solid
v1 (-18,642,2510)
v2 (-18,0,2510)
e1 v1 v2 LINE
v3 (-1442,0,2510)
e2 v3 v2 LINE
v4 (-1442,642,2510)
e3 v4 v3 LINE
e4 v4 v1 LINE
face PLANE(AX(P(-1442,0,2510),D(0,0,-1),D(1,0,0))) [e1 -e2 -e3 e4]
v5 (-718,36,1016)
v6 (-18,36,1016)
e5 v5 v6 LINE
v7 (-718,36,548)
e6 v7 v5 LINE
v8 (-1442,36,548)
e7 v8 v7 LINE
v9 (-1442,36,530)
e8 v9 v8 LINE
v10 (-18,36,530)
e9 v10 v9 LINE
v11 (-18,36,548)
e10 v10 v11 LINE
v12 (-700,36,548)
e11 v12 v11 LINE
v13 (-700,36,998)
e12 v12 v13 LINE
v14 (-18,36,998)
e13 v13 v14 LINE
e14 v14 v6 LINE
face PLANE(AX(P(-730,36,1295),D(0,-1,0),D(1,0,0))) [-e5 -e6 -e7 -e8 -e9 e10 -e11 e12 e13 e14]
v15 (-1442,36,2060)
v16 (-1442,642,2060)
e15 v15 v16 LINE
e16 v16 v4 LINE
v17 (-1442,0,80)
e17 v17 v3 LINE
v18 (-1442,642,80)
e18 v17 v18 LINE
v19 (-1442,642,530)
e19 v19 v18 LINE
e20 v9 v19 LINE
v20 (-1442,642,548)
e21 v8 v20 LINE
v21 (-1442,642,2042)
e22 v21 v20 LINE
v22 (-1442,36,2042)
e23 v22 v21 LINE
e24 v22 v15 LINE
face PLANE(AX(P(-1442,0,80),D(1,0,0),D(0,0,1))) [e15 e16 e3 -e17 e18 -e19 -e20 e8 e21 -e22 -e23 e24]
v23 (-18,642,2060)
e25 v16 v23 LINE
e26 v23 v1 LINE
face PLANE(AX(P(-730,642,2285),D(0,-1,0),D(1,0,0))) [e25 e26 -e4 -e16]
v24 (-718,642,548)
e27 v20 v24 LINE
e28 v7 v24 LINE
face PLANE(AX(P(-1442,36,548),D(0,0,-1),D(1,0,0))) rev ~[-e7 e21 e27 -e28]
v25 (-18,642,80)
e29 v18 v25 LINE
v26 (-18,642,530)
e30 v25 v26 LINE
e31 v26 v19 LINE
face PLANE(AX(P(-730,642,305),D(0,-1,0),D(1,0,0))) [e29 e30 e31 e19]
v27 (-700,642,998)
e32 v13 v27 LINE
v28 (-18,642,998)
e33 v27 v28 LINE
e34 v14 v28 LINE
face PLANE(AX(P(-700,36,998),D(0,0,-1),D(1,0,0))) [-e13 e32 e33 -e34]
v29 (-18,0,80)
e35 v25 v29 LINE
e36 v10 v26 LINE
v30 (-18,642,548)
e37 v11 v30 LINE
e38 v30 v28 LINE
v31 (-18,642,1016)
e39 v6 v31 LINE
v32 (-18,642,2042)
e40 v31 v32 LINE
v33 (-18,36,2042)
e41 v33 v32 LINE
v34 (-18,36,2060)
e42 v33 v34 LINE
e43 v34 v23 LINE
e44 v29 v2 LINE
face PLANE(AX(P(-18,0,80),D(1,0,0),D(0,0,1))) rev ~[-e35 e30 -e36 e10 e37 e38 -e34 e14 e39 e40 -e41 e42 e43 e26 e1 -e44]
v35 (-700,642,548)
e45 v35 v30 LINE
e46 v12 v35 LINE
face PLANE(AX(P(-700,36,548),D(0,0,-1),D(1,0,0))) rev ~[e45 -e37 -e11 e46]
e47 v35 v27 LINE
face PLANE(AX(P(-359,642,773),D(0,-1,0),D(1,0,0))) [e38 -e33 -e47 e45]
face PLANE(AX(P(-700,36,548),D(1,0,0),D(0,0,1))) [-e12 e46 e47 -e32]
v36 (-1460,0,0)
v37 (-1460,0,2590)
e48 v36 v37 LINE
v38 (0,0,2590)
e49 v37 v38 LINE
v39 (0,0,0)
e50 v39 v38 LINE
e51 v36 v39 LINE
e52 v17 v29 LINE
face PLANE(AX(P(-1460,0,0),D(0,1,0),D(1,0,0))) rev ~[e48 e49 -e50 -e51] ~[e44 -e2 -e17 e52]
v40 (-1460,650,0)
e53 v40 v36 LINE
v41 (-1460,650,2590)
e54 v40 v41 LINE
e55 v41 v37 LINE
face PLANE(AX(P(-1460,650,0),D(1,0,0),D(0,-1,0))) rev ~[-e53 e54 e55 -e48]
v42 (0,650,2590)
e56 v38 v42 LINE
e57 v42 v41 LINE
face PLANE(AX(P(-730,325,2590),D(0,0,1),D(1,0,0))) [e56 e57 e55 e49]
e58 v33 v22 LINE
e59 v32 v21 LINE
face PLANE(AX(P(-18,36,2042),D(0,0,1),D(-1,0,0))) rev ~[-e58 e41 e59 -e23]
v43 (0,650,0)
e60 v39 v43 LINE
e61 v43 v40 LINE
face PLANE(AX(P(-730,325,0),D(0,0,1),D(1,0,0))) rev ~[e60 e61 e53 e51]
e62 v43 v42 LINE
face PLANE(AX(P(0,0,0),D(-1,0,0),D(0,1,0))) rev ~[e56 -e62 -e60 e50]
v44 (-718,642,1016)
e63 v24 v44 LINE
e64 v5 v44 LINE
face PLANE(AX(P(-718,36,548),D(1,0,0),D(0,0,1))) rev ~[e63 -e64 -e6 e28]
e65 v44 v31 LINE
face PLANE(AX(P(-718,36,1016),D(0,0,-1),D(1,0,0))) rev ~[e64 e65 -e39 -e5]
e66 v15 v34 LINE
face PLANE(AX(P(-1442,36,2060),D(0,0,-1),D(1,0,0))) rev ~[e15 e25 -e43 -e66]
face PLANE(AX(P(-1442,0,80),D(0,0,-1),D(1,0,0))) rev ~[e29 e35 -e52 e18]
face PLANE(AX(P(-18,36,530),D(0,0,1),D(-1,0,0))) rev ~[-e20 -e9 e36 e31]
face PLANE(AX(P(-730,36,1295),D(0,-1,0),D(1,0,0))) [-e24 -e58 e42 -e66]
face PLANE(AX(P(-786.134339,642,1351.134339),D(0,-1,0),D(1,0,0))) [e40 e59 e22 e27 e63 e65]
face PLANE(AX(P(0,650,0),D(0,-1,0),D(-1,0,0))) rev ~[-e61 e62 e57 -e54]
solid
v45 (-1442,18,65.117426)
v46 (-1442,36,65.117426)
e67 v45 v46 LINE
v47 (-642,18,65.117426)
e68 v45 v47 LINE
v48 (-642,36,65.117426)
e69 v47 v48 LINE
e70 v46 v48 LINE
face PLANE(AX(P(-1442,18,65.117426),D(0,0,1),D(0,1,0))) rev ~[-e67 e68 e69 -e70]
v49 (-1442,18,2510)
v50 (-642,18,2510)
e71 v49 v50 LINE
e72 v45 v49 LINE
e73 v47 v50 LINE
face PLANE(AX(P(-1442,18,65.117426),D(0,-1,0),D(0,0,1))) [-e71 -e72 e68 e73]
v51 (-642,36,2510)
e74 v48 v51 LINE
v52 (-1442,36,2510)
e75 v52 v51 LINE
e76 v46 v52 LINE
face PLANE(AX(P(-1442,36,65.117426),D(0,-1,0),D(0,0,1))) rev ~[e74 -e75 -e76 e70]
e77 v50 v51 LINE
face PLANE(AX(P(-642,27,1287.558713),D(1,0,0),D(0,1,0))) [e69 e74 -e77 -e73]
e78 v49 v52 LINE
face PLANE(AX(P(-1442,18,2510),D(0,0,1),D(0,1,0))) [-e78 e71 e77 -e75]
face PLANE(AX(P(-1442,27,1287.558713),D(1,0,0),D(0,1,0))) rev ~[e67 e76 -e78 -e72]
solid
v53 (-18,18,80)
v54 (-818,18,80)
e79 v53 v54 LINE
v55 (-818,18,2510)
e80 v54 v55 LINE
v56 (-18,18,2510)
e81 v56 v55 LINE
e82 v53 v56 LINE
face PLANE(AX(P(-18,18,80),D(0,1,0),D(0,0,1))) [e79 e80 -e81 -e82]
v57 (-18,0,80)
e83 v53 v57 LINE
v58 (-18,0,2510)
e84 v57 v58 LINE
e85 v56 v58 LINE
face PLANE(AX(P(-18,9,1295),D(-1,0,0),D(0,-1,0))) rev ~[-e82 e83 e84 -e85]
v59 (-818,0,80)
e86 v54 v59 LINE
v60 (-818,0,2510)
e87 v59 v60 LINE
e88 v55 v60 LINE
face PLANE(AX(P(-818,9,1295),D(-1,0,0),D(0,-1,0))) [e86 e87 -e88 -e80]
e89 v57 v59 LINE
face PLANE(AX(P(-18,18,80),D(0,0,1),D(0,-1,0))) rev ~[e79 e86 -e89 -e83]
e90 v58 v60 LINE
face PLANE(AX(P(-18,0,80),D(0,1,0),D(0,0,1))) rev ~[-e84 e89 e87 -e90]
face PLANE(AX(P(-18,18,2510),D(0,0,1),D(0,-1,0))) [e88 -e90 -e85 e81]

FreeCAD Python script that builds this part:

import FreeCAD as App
import Part
import Sketcher
from FreeCAD import Vector


def add_polygon(sketch, points):
    """Adds a closed chain of lines whose ends are joined by coincident constraints."""
    first, n = sketch.GeometryCount, len(points)
    for a, b in zip(points, points[1:] + points[:1]):
        sketch.addGeometry(Part.LineSegment(App.Vector(*a, 0), App.Vector(*b, 0)), False)
    for i in range(n):
        sketch.addConstraint(Sketcher.Constraint("Coincident", first + i, 2, first + (i + 1) % n, 1))

doc = App.newDocument("Part")
body = doc.addObject("PartDesign::Body", "Body")

# Sketch on XY plane
sketch1 = body.newObject("Sketcher::SketchObject", "Sketch")
sketch1.AttachmentSupport = (doc.getObject("XY_Plane"), [""])
sketch1.MapMode = "FlatFace"
add_polygon(sketch1, [(-1460, 0), (0, 0), (0, 650), (-1460, 650)])  # lines 0-3
sketch1.addConstraint(Sketcher.Constraint("Horizontal", 0))
sketch1.addConstraint(Sketcher.Constraint("Vertical", 1))
sketch1.addConstraint(Sketcher.Constraint("Horizontal", 2))
sketch1.addConstraint(Sketcher.Constraint("Vertical", 3))
sketch1.addConstraint(Sketcher.Constraint("Coincident", 0, 2, -1, 1))
sketch1.addConstraint(Sketcher.Constraint("DistanceX", 0, 1, 0, 2, 1460.0))
sketch1.addConstraint(Sketcher.Constraint("DistanceY", 1, 1, 1, 2, 650.0))
pad1 = body.newObject("PartDesign::Pad", "Pad")
pad1.Profile = sketch1
pad1.Length = 2590

# Sketch on XZ plane
sketch2 = body.newObject("Sketcher::SketchObject", "Sketch001")
sketch2.AttachmentSupport = (doc.getObject("XZ_Plane"), [""])
sketch2.MapMode = "FlatFace"
add_polygon(sketch2, [(-1442, 2510), (-1442, 80), (-18, 80), (-18, 2510)])  # lines 0-3
sketch2.addConstraint(Sketcher.Constraint("Vertical", 0))
sketch2.addConstraint(Sketcher.Constraint("Horizontal", 1))
sketch2.addConstraint(Sketcher.Constraint("Vertical", 2))
sketch2.addConstraint(Sketcher.Constraint("Horizontal", 3))
sketch2.addConstraint(Sketcher.Constraint("DistanceX", 1, 1, 1, 2, 1424.0))
sketch2.addConstraint(Sketcher.Constraint("DistanceY", 0, 2, 0, 1, 2430.0))
sketch2.addConstraint(Sketcher.Constraint("DistanceX", 0, 2, -1, 1, 1442.0))
sketch2.addConstraint(Sketcher.Constraint("DistanceY", -1, 1, 0, 2, 80.0))
pocket1 = body.newObject("PartDesign::Pocket", "Pocket")
pocket1.Profile = sketch2
pocket1.Length = 36

# Sketch on XZ plane
sketch3 = body.newObject("Sketcher::SketchObject", "Sketch002")
sketch3.AttachmentSupport = (doc.getObject("XZ_Plane"), [""])
sketch3.MapMode = "FlatFace"
sketch3.AttachmentOffset = App.Placement(Vector(0, 0, -36), App.Rotation())
add_polygon(sketch3, [(-1442, 2510), (-1442, 2060), (-18, 2060), (-18, 2510)])  # lines 0-3
add_polygon(sketch3, [(-700, 998), (-700, 548), (-18, 548), (-18, 998)])  # lines 4-7
add_polygon(sketch3, [(-18, 2042), (-1442, 2042), (-1442, 548), (-718, 548), (-718, 1016), (-18, 1016)])  # lines 8-13
add_polygon(sketch3, [(-18, 530), (-1442, 530), (-1442, 80), (-18, 80)])  # lines 14-17
sketch3.addConstraint(Sketcher.Constraint("Vertical", 0))
sketch3.addConstraint(Sketcher.Constraint("Horizontal", 1))
sketch3.addConstraint(Sketcher.Constraint("Vertical", 2))
sketch3.addConstraint(Sketcher.Constraint("Horizontal", 3))
sketch3.addConstraint(Sketcher.Constraint("Vertical", 4))
sketch3.addConstraint(Sketcher.Constraint("Horizontal", 5))
sketch3.addConstraint(Sketcher.Constraint("Vertical", 6))
sketch3.addConstraint(Sketcher.Constraint("Horizontal", 7))
sketch3.addConstraint(Sketcher.Constraint("Horizontal", 8))
sketch3.addConstraint(Sketcher.Constraint("Vertical", 9))
sketch3.addConstraint(Sketcher.Constraint("Horizontal", 10))
sketch3.addConstraint(Sketcher.Constraint("Vertical", 11))
sketch3.addConstraint(Sketcher.Constraint("Horizontal", 12))
sketch3.addConstraint(Sketcher.Constraint("Vertical", 13))
sketch3.addConstraint(Sketcher.Constraint("Horizontal", 14))
sketch3.addConstraint(Sketcher.Constraint("Vertical", 15))
sketch3.addConstraint(Sketcher.Constraint("Horizontal", 16))
sketch3.addConstraint(Sketcher.Constraint("Vertical", 17))
sketch3.addConstraint(Sketcher.Constraint("Horizontal", 5, 2, 9, 2))
sketch3.addConstraint(Sketcher.Constraint("Vertical", 2, 2, 5, 2))
sketch3.addConstraint(Sketcher.Constraint("Vertical", 3, 2, 8, 2))
sketch3.addConstraint(Sketcher.Constraint("Vertical", 6, 2, 12, 2))
sketch3.addConstraint(Sketcher.Constraint("Vertical", 9, 2, 14, 2))
sketch3.addConstraint(Sketcher.Constraint("Vertical", 13, 2, 16, 2))
sketch3.addConstraint(Sketcher.Constraint("Equal", 2, 4))
sketch3.addConstraint(Sketcher.Constraint("Equal", 6, 15))
sketch3.addConstraint(Sketcher.Constraint("DistanceX", 1, 1, 1, 2, 1424.0))
sketch3.addConstraint(Sketcher.Constraint("DistanceX", 5, 1, 5, 2, 682.0))
sketch3.addConstraint(Sketcher.Constraint("DistanceX", 10, 1, 10, 2, 724.0))
sketch3.addConstraint(Sketcher.Constraint("DistanceY", 0, 2, 0, 1, 450.0))
sketch3.addConstraint(Sketcher.Constraint("DistanceY", 9, 2, 9, 1, 1494.0))
sketch3.addConstraint(Sketcher.Constraint("DistanceY", 11, 1, 11, 2, 468.0))
sketch3.addConstraint(Sketcher.Constraint("DistanceX", 0, 2, -1, 1, 1442.0))
sketch3.addConstraint(Sketcher.Constraint("DistanceY", -1, 1, 0, 2, 2060.0))
sketch3.addConstraint(Sketcher.Constraint("DistanceY", -1, 1, 4, 2, 548.0))
sketch3.addConstraint(Sketcher.Constraint("DistanceY", -1, 1, 14, 2, 530.0))
pocket2 = body.newObject("PartDesign::Pocket", "Pocket001")
pocket2.Profile = sketch3
pocket2.Length = 606
body2 = doc.addObject("PartDesign::Body", "Body001")

# Sketch on YZ plane
sketch4 = body2.newObject("Sketcher::SketchObject", "Sketch003")
sketch4.AttachmentSupport = (doc.getObject("YZ_Plane001"), [""])
sketch4.MapMode = "FlatFace"
sketch4.AttachmentOffset = App.Placement(Vector(0, 0, -18), App.Rotation())
add_polygon(sketch4, [(18, 2510), (18, 80), (0, 80), (0, 2510)])  # lines 0-3
sketch4.addConstraint(Sketcher.Constraint("Vertical", 0))
sketch4.addConstraint(Sketcher.Constraint("Horizontal", 1))
sketch4.addConstraint(Sketcher.Constraint("Vertical", 2))
sketch4.addConstraint(Sketcher.Constraint("Horizontal", 3))
sketch4.addConstraint(Sketcher.Constraint("PointOnObject", 1, 2, -2))
sketch4.addConstraint(Sketcher.Constraint("DistanceX", 1, 2, 1, 1, 18.0))
sketch4.addConstraint(Sketcher.Constraint("DistanceY", 0, 2, 0, 1, 2430.0))
sketch4.addConstraint(Sketcher.Constraint("DistanceY", -1, 1, 0, 2, 80.0))
pad2 = body2.newObject("PartDesign::Pad", "Pad001")
pad2.Profile = sketch4
pad2.Length = 800
pad2.Reversed = True
body3 = doc.addObject("PartDesign::Body", "Body002")

# Sketch on YZ plane
sketch5 = body3.newObject("Sketcher::SketchObject", "Sketch004")
sketch5.AttachmentSupport = (doc.getObject("YZ_Plane002"), [""])
sketch5.MapMode = "FlatFace"
sketch5.AttachmentOffset = App.Placement(Vector(0, 0, -1442), App.Rotation())
add_polygon(sketch5, [(18, 2510), (18, 65), (36, 65), (36, 2510)])  # lines 0-3
sketch5.addConstraint(Sketcher.Constraint("Vertical", 0))
sketch5.addConstraint(Sketcher.Constraint("Horizontal", 1))
sketch5.addConstraint(Sketcher.Constraint("Vertical", 2))
sketch5.addConstraint(Sketcher.Constraint("Horizontal", 3))
sketch5.addConstraint(Sketcher.Constraint("DistanceX", 1, 1, 1, 2, 18.0))
sketch5.addConstraint(Sketcher.Constraint("DistanceX", -1, 1, 0, 2, 18.0))
sketch5.addConstraint(Sketcher.Constraint("DistanceY", -1, 1, 2, 2, 2510.0))
sketch5.addConstraint(Sketcher.Constraint("DistanceY", 0, 2, 0, 1, 2444.882574))
pad3 = body3.newObject("PartDesign::Pad", "Pad002")
pad3.Profile = sketch5
pad3.Length = 800

doc.recompute()
